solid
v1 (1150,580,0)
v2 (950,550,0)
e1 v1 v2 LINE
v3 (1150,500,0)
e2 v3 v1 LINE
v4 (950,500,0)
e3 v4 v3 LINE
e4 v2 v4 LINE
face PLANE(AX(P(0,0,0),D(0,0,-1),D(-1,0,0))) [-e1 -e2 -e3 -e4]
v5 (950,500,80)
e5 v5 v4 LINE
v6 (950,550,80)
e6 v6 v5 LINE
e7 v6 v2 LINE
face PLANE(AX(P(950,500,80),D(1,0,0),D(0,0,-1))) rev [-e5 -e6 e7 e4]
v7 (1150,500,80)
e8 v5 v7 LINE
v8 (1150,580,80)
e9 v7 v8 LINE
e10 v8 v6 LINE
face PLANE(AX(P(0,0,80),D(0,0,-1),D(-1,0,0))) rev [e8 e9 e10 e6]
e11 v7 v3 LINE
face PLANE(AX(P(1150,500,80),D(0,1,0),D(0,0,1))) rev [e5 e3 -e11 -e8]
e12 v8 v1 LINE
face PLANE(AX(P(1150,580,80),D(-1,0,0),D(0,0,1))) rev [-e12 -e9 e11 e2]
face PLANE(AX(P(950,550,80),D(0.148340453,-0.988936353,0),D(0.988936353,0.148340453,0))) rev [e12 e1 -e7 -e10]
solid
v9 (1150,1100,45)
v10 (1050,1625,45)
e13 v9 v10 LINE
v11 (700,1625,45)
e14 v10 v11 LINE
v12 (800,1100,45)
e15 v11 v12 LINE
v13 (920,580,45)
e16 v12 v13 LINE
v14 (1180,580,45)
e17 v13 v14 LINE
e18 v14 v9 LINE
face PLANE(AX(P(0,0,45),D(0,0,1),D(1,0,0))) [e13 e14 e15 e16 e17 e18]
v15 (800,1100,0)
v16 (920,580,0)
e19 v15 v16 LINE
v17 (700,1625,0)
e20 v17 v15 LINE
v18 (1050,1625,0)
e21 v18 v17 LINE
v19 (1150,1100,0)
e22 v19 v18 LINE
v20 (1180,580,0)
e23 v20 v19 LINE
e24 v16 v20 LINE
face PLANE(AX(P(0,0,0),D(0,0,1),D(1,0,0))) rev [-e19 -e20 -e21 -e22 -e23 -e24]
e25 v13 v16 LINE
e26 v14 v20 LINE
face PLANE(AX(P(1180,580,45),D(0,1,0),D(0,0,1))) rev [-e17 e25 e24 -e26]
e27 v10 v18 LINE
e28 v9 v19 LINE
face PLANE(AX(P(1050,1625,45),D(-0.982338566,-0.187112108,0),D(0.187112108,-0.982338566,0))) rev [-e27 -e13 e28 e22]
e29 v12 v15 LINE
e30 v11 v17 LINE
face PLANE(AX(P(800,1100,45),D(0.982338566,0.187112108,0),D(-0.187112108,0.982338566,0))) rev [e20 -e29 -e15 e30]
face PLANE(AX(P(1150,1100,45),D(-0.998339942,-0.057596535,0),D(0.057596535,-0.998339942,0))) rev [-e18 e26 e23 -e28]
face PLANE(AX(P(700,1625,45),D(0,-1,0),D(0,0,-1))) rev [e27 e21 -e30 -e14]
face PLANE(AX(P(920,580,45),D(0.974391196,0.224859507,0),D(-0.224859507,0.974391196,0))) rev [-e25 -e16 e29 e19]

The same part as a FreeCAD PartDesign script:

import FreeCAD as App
import Part
import Sketcher

V = App.Vector


def add_polygon(sketch, points):
    """Adds a closed chain of lines whose ends are joined by coincident constraints."""
    first, n = sketch.GeometryCount, len(points)
    for a, b in zip(points, points[1:] + points[:1]):
        sketch.addGeometry(Part.LineSegment(App.Vector(*a, 0), App.Vector(*b, 0)), False)
    for i in range(n):
        sketch.addConstraint(Sketcher.Constraint("Coincident", first + i, 2, first + (i + 1) % n, 1))

doc = App.newDocument("Part")
body = doc.addObject("PartDesign::Body", "Body")

# Sketch on XY plane
sketch1 = body.newObject("Sketcher::SketchObject", "Sketch")
sketch1.AttachmentSupport = (doc.getObject("XY_Plane"), [""])
sketch1.MapMode = "FlatFace"
add_polygon(sketch1, [(950, 550), (950, 500), (1150, 500), (1150, 580)])  # lines 0-3
sketch1.addConstraint([
    Sketcher.Constraint("Vertical", 0),
    Sketcher.Constraint("Horizontal", 1),
    Sketcher.Constraint("Vertical", 2),
    Sketcher.Constraint("DistanceX", 1, 1, 1, 2, 200.0),
    Sketcher.Constraint("DistanceY", 0, 2, 0, 1, 50.0),
    Sketcher.Constraint("DistanceY", 2, 1, 2, 2, 80.0),
    Sketcher.Constraint("DistanceX", -1, 1, 0, 2, 950.0),
    Sketcher.Constraint("DistanceY", -1, 1, 0, 2, 500.0),
])
pad1 = body.newObject("PartDesign::Pad", "Pad")
pad1.Profile = sketch1
pad1.Length = 80
body2 = doc.addObject("PartDesign::Body", "Body001")

# Sketch on XY plane
sketch2 = body2.newObject("Sketcher::SketchObject", "Sketch001")
sketch2.AttachmentSupport = (doc.getObject("XY_Plane001"), [""])
sketch2.MapMode = "FlatFace"
add_polygon(sketch2, [(800, 1100), (920, 580), (1180, 580), (1150, 1100), (1050, 1625), (700, 1625)])  # lines 0-5
sketch2.addConstraint([
    Sketcher.Constraint("Horizontal", 1),
    Sketcher.Constraint("Horizontal", 4),
    Sketcher.Constraint("Parallel", 3, 5),
    Sketcher.Constraint("Horizontal", 2, 2, 5, 2),
    Sketcher.Constraint("DistanceX", 1, 1, 1, 2, 260.0),
    Sketcher.Constraint("DistanceX", 4, 2, 4, 1, 350.0),
    Sketcher.Constraint("DistanceX", -1, 1, 0, 2, 920.0),
    Sketcher.Constraint("DistanceY", -1, 1, 0, 2, 580.0),
    Sketcher.Constraint("DistanceX", -1, 1, 2, 2, 1150.0),
    Sketcher.Constraint("DistanceY", -1, 1, 2, 2, 1100.0),
    Sketcher.Constraint("DistanceX", -1, 1, 3, 2, 1050.0),
    Sketcher.Constraint("DistanceY", -1, 1, 3, 2, 1625.0),
])
pad2 = body2.newObject("PartDesign::Pad", "Pad001")
pad2.Profile = sketch2
pad2.Length = 45

doc.recompute()
